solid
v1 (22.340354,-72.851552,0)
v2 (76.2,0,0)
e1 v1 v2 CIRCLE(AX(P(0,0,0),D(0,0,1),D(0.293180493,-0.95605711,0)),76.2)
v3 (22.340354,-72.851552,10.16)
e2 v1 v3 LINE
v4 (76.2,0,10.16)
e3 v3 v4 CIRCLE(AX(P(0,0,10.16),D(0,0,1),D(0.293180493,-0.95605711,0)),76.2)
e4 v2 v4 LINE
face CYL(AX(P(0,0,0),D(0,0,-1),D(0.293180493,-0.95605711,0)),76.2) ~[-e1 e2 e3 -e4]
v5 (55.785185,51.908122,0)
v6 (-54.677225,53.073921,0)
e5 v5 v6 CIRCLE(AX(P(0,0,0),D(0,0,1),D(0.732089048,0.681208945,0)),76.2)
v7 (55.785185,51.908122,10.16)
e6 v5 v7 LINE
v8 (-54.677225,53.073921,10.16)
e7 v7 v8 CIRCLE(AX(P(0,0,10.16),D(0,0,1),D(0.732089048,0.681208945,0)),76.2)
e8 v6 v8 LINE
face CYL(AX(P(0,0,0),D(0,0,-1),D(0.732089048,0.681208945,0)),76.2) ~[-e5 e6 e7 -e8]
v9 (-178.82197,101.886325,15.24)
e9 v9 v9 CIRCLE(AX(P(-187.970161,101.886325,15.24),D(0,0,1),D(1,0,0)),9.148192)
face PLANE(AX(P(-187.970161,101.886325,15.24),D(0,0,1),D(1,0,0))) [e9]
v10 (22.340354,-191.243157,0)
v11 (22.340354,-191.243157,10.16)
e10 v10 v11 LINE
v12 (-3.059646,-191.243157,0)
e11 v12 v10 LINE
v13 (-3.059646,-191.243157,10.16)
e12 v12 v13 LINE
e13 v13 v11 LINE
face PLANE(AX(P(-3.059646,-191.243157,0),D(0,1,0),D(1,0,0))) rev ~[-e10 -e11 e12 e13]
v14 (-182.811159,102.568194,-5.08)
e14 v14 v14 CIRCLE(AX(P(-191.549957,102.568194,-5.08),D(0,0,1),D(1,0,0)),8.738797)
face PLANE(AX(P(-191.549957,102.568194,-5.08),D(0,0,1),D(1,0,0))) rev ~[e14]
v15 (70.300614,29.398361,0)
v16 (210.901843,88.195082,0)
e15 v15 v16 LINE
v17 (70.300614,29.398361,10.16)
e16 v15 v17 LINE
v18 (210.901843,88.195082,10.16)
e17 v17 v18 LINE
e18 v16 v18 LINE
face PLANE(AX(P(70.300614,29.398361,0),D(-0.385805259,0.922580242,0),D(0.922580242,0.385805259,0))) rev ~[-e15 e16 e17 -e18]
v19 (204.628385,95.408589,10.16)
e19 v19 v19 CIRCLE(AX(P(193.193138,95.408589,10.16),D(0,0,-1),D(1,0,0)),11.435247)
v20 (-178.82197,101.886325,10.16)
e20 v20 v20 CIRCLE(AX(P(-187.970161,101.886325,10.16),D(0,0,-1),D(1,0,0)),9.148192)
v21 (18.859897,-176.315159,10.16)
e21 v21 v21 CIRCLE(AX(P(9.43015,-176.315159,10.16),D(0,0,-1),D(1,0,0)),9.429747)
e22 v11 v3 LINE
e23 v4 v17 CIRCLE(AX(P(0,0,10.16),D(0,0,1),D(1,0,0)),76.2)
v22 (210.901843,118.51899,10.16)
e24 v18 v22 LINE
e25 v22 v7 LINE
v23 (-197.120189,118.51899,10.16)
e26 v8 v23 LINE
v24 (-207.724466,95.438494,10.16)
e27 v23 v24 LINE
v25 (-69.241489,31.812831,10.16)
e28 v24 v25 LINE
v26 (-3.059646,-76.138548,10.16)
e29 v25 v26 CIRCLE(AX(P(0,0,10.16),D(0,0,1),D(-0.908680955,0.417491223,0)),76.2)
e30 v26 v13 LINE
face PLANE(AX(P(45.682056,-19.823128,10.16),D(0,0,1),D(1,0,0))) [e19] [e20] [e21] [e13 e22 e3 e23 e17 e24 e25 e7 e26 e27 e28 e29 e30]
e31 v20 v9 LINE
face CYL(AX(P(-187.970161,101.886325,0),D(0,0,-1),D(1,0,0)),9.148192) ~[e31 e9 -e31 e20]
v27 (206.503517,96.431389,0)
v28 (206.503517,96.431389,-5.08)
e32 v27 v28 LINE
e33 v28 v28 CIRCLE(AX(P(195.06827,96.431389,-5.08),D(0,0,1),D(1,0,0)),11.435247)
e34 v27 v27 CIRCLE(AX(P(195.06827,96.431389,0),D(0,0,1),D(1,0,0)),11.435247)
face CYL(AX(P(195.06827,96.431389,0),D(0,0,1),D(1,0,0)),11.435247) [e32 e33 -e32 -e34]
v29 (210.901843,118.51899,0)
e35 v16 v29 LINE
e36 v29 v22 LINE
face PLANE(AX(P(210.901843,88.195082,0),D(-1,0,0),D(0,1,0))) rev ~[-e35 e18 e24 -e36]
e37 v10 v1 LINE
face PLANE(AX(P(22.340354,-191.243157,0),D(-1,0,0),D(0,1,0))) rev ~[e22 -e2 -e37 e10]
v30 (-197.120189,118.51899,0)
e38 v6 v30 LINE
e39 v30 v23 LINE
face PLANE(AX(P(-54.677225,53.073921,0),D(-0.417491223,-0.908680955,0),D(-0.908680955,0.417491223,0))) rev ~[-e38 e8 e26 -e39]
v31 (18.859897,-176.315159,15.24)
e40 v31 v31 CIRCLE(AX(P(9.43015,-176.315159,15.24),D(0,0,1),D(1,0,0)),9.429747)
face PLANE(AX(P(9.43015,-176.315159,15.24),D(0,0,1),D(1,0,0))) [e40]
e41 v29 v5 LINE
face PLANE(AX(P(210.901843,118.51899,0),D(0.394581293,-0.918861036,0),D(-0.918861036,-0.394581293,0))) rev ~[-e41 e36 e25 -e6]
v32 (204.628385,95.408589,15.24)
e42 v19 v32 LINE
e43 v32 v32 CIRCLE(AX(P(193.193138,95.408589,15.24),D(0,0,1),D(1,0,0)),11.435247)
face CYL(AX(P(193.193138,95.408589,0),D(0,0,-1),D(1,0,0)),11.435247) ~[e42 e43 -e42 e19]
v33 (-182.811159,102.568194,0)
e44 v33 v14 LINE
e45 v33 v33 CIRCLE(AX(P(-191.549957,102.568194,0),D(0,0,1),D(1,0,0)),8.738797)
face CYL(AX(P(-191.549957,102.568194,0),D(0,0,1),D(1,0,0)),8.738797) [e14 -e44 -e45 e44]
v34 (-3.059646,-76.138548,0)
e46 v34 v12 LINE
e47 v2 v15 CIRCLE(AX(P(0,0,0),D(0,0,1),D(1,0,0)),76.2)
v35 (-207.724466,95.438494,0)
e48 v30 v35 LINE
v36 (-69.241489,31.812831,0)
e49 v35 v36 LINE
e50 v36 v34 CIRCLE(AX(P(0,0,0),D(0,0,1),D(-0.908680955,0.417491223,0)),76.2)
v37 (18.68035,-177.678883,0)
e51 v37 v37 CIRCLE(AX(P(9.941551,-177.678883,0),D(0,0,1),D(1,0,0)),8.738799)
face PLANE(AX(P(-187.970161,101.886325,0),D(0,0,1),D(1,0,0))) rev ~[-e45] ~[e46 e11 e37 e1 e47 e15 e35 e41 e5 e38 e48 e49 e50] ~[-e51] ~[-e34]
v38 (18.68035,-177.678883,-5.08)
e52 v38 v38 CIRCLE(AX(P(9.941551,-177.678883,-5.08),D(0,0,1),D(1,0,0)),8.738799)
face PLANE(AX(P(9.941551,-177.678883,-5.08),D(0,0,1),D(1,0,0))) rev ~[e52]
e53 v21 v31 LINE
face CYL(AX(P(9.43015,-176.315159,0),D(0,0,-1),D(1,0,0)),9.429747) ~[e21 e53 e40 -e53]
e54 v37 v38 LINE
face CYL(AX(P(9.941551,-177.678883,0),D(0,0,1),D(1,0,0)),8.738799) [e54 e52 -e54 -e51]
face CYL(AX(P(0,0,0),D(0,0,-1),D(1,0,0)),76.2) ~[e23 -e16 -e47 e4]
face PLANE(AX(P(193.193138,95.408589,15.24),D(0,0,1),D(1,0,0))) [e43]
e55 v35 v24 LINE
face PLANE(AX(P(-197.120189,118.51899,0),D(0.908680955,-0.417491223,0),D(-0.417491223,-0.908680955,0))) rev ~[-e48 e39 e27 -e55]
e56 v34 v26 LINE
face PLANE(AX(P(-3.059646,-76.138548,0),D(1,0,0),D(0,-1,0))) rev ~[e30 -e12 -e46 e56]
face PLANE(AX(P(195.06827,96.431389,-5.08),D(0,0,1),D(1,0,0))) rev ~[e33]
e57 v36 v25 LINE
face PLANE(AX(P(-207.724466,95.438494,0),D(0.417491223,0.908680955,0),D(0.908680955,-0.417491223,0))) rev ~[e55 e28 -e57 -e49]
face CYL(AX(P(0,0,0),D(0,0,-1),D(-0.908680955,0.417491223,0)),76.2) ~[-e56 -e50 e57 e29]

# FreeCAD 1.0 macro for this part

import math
import FreeCAD as App
import Part
import Sketcher
from FreeCAD import Vector
Q = App.Units.Quantity

doc = App.newDocument("Part")
body = doc.addObject("PartDesign::Body", "Body")

sketch1 = body.newObject("Sketcher::SketchObject", "Sketch")
sketch1.AttachmentSupport = (doc.getObject("XY_Plane"), [""])
sketch1.MapMode = "FlatFace"
sketch1.addGeometry(Part.ArcOfCircle(Part.Circle(Vector(0, 0, 0), Vector(0, 0, 1), 76), math.radians(-73), math.radians(0)), False)
sketch1.addGeometry(Part.ArcOfCircle(Part.Circle(Vector(0, 0, 0), Vector(0, 0, 1), 76), math.radians(0), math.radians(23)), False)
sketch1.addGeometry(Part.LineSegment(Vector(70, 29, 0), Vector(211, 88, 0)), False)
sketch1.addGeometry(Part.LineSegment(Vector(211, 88, 0), Vector(211, 119, 0)), False)
sketch1.addGeometry(Part.LineSegment(Vector(211, 119, 0), Vector(56, 52, 0)), False)
sketch1.addGeometry(Part.ArcOfCircle(Part.Circle(Vector(0, 0, 0), Vector(0, 0, 1), 76), math.radians(43), math.radians(136)), False)
sketch1.addGeometry(Part.LineSegment(Vector(-55, 53, 0), Vector(-197, 119, 0)), False)
sketch1.addGeometry(Part.LineSegment(Vector(-197, 119, 0), Vector(-208, 95, 0)), False)
sketch1.addGeometry(Part.LineSegment(Vector(-208, 95, 0), Vector(-69, 32, 0)), False)
sketch1.addGeometry(Part.ArcOfCircle(Part.Circle(Vector(0, 0, 0), Vector(0, 0, 1), 76), math.radians(155), math.radians(268)), False)
sketch1.addGeometry(Part.LineSegment(Vector(-3, -76, 0), Vector(-3, -191, 0)), False)
sketch1.addGeometry(Part.LineSegment(Vector(-3, -191, 0), Vector(22, -191, 0)), False)
sketch1.addGeometry(Part.LineSegment(Vector(22, -191, 0), Vector(22, -73, 0)), False)
sketch1.addConstraint(Sketcher.Constraint("Tangent", 0, 2, 1, 1))
sketch1.addConstraint(Sketcher.Constraint("Coincident", 1, 2, 2, 1))
sketch1.addConstraint(Sketcher.Constraint("Coincident", 2, 2, 3, 1))
sketch1.addConstraint(Sketcher.Constraint("Coincident", 3, 2, 4, 1))
sketch1.addConstraint(Sketcher.Constraint("Coincident", 4, 2, 5, 1))
sketch1.addConstraint(Sketcher.Constraint("Coincident", 5, 2, 6, 1))
sketch1.addConstraint(Sketcher.Constraint("Coincident", 6, 2, 7, 1))
sketch1.addConstraint(Sketcher.Constraint("Coincident", 7, 2, 8, 1))
sketch1.addConstraint(Sketcher.Constraint("Coincident", 8, 2, 9, 1))
sketch1.addConstraint(Sketcher.Constraint("Coincident", 9, 2, 10, 1))
sketch1.addConstraint(Sketcher.Constraint("Coincident", 10, 2, 11, 1))
sketch1.addConstraint(Sketcher.Constraint("Coincident", 11, 2, 12, 1))
sketch1.addConstraint(Sketcher.Constraint("Coincident", 12, 2, 0, 1))
sketch1.addConstraint(Sketcher.Constraint("Vertical", 3))
sketch1.addConstraint(Sketcher.Constraint("Vertical", 10))
sketch1.addConstraint(Sketcher.Constraint("Horizontal", 11))
sketch1.addConstraint(Sketcher.Constraint("Vertical", 12))
sketch1.addConstraint(Sketcher.Constraint("Coincident", 0, 3, -1, 1))
sketch1.addConstraint(Sketcher.Constraint("Coincident", 5, 3, -1, 1))
sketch1.addConstraint(Sketcher.Constraint("Coincident", 9, 3, -1, 1))
sketch1.addConstraint(Sketcher.Constraint("Equal", 0, 1))
sketch1.addConstraint(Sketcher.Constraint("Equal", 1, 5))
sketch1.addConstraint(Sketcher.Constraint("Equal", 5, 9))
sketch1.addConstraint(Sketcher.Constraint("PointOnObject", 0, 2, -1))
sketch1.addConstraint(Sketcher.Constraint("Perpendicular", 6, 7))
sketch1.addConstraint(Sketcher.Constraint("Perpendicular", 7, 8))
sketch1.addConstraint(Sketcher.Constraint("Horizontal", 3, 2, 6, 2))
sketch1.addConstraint(Sketcher.Constraint("Equal", 2, 8))
sketch1.addConstraint(Sketcher.Constraint("Radius", 0, Q("3 in")))
sketch1.addConstraint(Sketcher.Constraint("DistanceX", 11, 1, 11, 2, Q("1 in")))
sketch1.addConstraint(Sketcher.Constraint("Distance", 2, Q("6 in")))
sketch1.addConstraint(Sketcher.Constraint("Distance", 7, Q("1 in")))
sketch1.addConstraint(Sketcher.Constraint("DistanceY", 10, 2, 10, 1, Q("115.104608 mm")))
sketch1.addConstraint(Sketcher.Constraint("DistanceY", 4, 2, 5, 2, Q("1.1658 mm")))
sketch1.addConstraint(Sketcher.Constraint("Distance", 6, Q("156.757951 mm")))
sketch1.addConstraint(Sketcher.Constraint("DistanceY", 3, 1, 3, 2, Q("30.323908 mm")))
sketch1.addConstraint(Sketcher.Constraint("DistanceY", 12, 1, 12, 2, Q("118.391605 mm")))
sketch1.addConstraint(Sketcher.Constraint("DistanceY", -1, 1, 1, 2, Q("29.398361 mm")))
sketch1.addConstraint(Sketcher.Constraint("DistanceY", -1, 1, 3, 2, Q("118.51899 mm")))
pad1 = body.newObject("PartDesign::Pad", "Pad")
pad1.Profile = sketch1
pad1.Length = Q("0.4 in")

sketch2 = body.newObject("Sketcher::SketchObject", "Sketch001")
sketch2.AttachmentSupport = (doc.getObject("XY_Plane"), [""])
sketch2.MapMode = "FlatFace"
sketch2.addGeometry(Part.Circle(Vector(-188, 102, 0), Vector(0, 0, 1), 9), False)
sketch2.addGeometry(Part.Circle(Vector(9, -176, 0), Vector(0, 0, 1), 9), False)
sketch2.addGeometry(Part.Circle(Vector(193, 95, 0), Vector(0, 0, 1), 11), False)
sketch2.addConstraint(Sketcher.Constraint("Diameter", 0, Q("18.296384 mm")))
sketch2.addConstraint(Sketcher.Constraint("Diameter", 1, Q("18.859494 mm")))
sketch2.addConstraint(Sketcher.Constraint("Diameter", 2, Q("22.870495 mm")))
sketch2.addConstraint(Sketcher.Constraint("DistanceX", 0, 3, -1, 1, Q("7.4004001 in")))
sketch2.addConstraint(Sketcher.Constraint("DistanceX", 0, 3, 2, 3, Q("381.163299 mm")))
sketch2.addConstraint(Sketcher.Constraint("DistanceX", -1, 1, 1, 3, Q("9.43015 mm")))
sketch2.addConstraint(Sketcher.Constraint("DistanceY", 1, 3, -1, 1, Q("176.315159 mm")))
sketch2.addConstraint(Sketcher.Constraint("DistanceY", -1, 1, 2, 3, Q("95.408589 mm")))
sketch2.addConstraint(Sketcher.Constraint("DistanceY", -1, 1, 0, 3, Q("101.886325 mm")))
pad2 = body.newObject("PartDesign::Pad", "Pad001")
pad2.Profile = sketch2
pad2.Length = Q("0.6 in")

sketch3 = body.newObject("Sketcher::SketchObject", "Sketch002")
sketch3.AttachmentSupport = (doc.getObject("XY_Plane"), [""])
sketch3.MapMode = "FlatFace"
sketch3.addGeometry(Part.Circle(Vector(10, -178, 0), Vector(0, 0, 1), 9), False)
sketch3.addGeometry(Part.Circle(Vector(-192, 103, 0), Vector(0, 0, 1), 9), False)
sketch3.addGeometry(Part.Circle(Vector(195, 96, 0), Vector(0, 0, 1), 11), False)
sketch3.addConstraint(Sketcher.Constraint("Equal", 0, 1))
sketch3.addConstraint(Sketcher.Constraint("Diameter", 0, Q("17.477598 mm")))
sketch3.addConstraint(Sketcher.Constraint("Diameter", 2, Q("22.870495 mm")))
sketch3.addConstraint(Sketcher.Constraint("DistanceX", -1, 1, 0, 3, Q("9.941551 mm")))
sketch3.addConstraint(Sketcher.Constraint("DistanceX", -1, 1, 2, 3, Q("195.06827 mm")))
sketch3.addConstraint(Sketcher.Constraint("DistanceY", -1, 1, 2, 3, Q("96.431389 mm")))
sketch3.addConstraint(Sketcher.Constraint("DistanceY", 0, 3, -1, 1, Q("177.678883 mm")))
sketch3.addConstraint(Sketcher.Constraint("DistanceX", 1, 3, -1, 1, Q("191.549957 mm")))
sketch3.addConstraint(Sketcher.Constraint("DistanceY", -1, 1, 1, 3, Q("102.568194 mm")))
pad3 = body.newObject("PartDesign::Pad", "Pad002")
pad3.Profile = sketch3
pad3.Length = Q("0.2 in")
pad3.Reversed = True

doc.recompute()
